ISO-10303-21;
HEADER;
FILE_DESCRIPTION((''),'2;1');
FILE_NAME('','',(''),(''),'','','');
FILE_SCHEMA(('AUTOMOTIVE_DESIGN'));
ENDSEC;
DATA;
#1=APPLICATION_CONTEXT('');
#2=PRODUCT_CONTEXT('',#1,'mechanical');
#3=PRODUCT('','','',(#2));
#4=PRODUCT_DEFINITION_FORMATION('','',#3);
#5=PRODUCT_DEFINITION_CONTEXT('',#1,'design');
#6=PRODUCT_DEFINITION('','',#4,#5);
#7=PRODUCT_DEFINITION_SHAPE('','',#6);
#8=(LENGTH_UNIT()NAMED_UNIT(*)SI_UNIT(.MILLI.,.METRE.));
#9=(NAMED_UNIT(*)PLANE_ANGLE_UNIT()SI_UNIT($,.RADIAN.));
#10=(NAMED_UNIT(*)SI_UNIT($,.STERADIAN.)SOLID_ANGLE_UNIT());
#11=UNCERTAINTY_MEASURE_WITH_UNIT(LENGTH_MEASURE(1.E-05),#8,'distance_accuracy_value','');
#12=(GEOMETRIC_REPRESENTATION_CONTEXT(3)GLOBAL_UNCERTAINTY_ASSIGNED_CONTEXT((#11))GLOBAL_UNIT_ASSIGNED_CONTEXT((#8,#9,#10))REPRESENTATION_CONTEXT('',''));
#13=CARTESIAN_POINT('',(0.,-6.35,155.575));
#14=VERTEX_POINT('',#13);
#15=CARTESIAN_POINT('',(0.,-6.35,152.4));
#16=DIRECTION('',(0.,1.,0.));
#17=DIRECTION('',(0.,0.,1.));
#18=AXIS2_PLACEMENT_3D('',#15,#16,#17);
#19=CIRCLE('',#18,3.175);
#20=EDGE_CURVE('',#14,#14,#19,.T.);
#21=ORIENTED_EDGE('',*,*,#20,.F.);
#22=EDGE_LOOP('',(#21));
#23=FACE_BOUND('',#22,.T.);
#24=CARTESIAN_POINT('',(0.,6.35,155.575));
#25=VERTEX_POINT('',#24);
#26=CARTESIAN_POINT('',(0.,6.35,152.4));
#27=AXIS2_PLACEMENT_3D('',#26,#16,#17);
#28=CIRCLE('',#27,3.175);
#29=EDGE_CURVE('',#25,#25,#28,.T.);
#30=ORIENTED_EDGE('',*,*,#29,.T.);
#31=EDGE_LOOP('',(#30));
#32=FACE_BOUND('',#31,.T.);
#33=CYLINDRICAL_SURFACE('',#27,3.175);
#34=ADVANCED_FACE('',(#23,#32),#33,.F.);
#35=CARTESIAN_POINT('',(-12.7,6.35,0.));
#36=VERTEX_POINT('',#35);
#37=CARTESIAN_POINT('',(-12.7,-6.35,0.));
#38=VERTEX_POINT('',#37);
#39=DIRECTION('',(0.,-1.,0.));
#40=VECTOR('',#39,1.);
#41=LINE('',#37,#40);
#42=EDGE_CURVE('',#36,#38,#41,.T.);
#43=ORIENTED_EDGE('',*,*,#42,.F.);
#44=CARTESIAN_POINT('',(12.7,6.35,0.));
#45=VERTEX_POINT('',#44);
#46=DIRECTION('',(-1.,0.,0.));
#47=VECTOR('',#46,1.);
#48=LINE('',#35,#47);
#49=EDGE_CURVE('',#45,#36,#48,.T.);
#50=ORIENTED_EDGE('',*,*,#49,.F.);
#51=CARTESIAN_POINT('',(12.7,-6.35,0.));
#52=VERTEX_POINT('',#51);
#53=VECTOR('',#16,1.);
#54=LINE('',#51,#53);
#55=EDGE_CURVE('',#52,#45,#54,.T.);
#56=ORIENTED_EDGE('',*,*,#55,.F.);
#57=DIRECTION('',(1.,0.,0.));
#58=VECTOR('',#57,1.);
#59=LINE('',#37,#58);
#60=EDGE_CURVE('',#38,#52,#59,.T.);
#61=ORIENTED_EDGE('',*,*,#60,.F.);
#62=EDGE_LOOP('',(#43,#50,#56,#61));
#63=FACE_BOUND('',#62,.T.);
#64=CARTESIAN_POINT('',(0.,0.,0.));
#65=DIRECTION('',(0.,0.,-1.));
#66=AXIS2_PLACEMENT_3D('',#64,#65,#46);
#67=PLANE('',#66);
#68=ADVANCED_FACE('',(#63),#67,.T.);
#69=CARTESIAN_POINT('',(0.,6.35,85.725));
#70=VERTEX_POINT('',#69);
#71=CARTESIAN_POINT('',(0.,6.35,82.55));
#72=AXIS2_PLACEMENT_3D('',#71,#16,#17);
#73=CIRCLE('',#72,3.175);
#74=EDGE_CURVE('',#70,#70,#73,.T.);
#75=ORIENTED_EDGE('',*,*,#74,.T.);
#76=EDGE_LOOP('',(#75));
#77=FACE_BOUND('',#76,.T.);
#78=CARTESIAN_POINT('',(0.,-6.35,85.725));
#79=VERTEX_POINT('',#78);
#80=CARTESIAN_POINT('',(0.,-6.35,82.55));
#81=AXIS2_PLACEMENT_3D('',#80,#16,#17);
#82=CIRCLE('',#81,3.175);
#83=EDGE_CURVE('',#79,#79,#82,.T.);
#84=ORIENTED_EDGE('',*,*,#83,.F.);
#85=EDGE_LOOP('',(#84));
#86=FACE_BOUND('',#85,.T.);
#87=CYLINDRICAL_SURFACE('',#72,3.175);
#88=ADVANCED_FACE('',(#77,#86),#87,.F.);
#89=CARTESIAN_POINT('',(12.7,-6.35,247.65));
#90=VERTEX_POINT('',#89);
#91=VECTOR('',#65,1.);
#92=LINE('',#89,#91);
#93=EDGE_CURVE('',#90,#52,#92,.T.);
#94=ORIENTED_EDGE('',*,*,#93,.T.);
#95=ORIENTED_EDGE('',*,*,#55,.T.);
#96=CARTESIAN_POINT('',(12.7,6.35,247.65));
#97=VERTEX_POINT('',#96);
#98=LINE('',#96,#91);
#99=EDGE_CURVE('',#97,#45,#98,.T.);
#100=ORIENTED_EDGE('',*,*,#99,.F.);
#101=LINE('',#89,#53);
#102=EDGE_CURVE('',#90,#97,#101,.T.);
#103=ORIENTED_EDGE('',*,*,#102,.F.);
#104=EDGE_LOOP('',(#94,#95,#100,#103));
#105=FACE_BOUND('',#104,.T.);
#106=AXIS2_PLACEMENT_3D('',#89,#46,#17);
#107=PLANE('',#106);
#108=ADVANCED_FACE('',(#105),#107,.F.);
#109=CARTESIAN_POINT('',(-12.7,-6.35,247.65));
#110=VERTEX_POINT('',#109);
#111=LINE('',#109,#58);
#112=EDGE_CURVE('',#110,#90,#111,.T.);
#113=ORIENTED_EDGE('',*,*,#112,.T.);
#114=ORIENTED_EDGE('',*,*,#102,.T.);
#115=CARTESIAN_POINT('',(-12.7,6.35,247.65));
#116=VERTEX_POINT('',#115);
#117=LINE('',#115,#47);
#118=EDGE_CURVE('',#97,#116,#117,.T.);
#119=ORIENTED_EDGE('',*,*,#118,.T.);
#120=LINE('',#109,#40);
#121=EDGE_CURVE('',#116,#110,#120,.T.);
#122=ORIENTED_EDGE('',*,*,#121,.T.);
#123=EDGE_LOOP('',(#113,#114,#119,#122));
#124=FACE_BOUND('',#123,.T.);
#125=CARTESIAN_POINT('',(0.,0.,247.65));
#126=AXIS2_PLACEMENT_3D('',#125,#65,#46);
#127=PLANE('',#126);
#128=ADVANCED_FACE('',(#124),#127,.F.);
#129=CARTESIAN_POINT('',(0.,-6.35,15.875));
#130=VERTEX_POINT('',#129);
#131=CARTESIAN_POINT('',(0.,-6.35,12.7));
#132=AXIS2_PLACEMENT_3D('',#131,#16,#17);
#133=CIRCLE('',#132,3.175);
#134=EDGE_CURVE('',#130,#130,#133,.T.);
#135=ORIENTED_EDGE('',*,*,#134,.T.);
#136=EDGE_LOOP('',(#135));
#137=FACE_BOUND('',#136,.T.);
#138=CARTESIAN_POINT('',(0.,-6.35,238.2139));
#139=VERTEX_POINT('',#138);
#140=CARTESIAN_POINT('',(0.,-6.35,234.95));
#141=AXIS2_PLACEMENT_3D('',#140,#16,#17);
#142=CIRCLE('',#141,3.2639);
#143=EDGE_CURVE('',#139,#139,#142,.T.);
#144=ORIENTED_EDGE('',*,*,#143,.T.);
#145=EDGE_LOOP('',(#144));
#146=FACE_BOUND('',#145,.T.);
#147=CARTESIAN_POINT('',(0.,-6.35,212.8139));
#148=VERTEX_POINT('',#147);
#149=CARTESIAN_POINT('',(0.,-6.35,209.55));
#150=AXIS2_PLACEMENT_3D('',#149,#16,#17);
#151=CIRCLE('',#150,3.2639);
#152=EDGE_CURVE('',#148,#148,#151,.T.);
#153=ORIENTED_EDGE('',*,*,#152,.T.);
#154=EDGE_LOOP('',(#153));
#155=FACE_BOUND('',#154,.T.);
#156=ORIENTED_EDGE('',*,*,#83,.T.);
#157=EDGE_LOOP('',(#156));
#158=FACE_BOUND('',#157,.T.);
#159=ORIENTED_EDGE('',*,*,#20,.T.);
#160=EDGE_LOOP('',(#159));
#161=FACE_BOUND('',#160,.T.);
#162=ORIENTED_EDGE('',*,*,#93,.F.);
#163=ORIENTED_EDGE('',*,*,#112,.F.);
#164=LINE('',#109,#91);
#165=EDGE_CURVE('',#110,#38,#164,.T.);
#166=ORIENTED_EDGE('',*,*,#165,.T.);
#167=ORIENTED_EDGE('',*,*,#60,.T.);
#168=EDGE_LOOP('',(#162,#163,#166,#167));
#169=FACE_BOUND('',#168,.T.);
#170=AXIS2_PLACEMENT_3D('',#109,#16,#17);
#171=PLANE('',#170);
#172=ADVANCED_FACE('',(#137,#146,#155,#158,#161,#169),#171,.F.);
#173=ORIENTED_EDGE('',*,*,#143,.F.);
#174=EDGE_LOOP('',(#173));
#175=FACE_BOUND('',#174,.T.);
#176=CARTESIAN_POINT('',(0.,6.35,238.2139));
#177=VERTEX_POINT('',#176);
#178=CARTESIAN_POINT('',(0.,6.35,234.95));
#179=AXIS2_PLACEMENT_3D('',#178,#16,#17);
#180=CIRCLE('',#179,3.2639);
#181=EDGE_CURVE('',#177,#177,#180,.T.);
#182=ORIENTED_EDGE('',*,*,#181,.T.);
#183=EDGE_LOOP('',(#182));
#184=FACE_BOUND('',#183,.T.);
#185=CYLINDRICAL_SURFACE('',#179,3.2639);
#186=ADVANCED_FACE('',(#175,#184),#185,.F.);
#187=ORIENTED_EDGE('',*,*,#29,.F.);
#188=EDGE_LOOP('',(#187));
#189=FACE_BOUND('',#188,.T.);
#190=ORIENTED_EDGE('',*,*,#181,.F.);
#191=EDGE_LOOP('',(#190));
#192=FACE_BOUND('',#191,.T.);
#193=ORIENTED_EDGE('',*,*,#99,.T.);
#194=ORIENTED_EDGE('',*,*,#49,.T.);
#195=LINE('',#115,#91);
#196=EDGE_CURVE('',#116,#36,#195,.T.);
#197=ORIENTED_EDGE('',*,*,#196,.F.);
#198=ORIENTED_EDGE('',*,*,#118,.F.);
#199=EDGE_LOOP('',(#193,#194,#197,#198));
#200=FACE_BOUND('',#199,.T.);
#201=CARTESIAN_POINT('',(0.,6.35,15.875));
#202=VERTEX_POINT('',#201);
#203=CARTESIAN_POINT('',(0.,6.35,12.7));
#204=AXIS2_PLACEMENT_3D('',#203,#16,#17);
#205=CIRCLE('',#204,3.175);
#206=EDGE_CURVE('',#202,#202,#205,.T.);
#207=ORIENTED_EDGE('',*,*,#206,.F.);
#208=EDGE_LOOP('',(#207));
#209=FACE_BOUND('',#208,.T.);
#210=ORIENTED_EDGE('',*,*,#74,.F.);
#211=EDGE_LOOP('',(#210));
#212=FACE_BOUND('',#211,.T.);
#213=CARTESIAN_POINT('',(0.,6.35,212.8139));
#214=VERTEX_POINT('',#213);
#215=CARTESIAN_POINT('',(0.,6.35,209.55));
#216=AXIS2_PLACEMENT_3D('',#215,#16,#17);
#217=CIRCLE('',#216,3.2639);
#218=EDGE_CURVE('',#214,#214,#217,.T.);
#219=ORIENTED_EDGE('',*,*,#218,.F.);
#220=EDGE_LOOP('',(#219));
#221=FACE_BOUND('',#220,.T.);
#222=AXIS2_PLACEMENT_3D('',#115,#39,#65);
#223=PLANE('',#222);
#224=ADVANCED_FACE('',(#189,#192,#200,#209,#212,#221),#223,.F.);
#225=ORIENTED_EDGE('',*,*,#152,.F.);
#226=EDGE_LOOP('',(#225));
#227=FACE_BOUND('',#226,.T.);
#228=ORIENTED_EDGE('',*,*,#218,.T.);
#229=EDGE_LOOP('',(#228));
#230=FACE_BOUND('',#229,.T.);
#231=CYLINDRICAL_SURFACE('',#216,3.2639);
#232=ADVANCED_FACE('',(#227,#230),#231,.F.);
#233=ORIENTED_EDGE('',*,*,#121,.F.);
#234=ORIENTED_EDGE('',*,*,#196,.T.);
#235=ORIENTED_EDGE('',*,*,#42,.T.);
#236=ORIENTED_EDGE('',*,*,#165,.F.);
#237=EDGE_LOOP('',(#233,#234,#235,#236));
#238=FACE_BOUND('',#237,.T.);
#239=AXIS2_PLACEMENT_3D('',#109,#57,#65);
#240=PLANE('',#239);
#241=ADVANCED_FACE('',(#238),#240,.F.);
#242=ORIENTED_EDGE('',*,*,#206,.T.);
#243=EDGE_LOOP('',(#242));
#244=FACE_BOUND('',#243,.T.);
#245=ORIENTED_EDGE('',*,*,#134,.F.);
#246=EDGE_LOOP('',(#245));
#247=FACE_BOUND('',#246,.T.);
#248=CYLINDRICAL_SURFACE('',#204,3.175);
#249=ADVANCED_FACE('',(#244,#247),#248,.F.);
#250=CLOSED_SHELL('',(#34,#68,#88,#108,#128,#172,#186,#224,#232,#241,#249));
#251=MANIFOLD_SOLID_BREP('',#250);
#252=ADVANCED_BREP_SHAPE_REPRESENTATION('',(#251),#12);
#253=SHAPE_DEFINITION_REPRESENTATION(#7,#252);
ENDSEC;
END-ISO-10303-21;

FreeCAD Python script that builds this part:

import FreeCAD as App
import Part
import Sketcher
Q = App.Units.Quantity

doc = App.newDocument("Part")
body = doc.addObject("PartDesign::Body", "Body")

# Sketch on XY plane
sketch1 = body.newObject("Sketcher::SketchObject", "Sketch")
sketch1.AttachmentSupport = (doc.getObject("XY_Plane"), [""])
sketch1.MapMode = "FlatFace"
sketch1.addGeometry([
    Part.LineSegment(App.Vector(-13, 6, 0), App.Vector(-13, -6, 0)),
    Part.LineSegment(App.Vector(-13, -6, 0), App.Vector(13, -6, 0)),
    Part.LineSegment(App.Vector(13, -6, 0), App.Vector(13, 6, 0)),
    Part.LineSegment(App.Vector(13, 6, 0), App.Vector(-13, 6, 0)),
], False)
sketch1.addConstraint([
    Sketcher.Constraint("Coincident", 0, 2, 1, 1),
    Sketcher.Constraint("Coincident", 1, 2, 2, 1),
    Sketcher.Constraint("Coincident", 2, 2, 3, 1),
    Sketcher.Constraint("Coincident", 3, 2, 0, 1),
    Sketcher.Constraint("Vertical", 0),
    Sketcher.Constraint("Horizontal", 1),
    Sketcher.Constraint("Vertical", 2),
    Sketcher.Constraint("Horizontal", 3),
    Sketcher.Constraint("Symmetric", 0, 2, 2, 2, -1, 1),
    Sketcher.Constraint("DistanceX", 1, 1, 1, 2, Q("1 in")),
    Sketcher.Constraint("DistanceY", 0, 2, 0, 1, Q("0.5 in")),
])
pad1 = body.newObject("PartDesign::Pad", "Pad")
pad1.Profile = sketch1
pad1.Length = Q("9.75 in")

# Sketch on XZ plane
sketch2 = body.newObject("Sketcher::SketchObject", "Sketch001")
sketch2.AttachmentSupport = (doc.getObject("XZ_Plane"), [""])
sketch2.MapMode = "FlatFace"
sketch2.AttachmentOffset = App.Placement(App.Vector(0, 0, -0.25 * 25.4), App.Rotation())
sketch2.addGeometry([
    Part.Circle(App.Vector(0, 234.9, 0), App.Vector(0, 0, 1), 3.3),
    Part.Circle(App.Vector(0, 209.6, 0), App.Vector(0, 0, 1), 3.3),
], False)
sketch2.addConstraint([
    Sketcher.Constraint("Equal", 0, 1),
    Sketcher.Constraint("PointOnObject", 0, 3, -2),
    Sketcher.Constraint("PointOnObject", 1, 3, -2),
    Sketcher.Constraint("Diameter", 0, Q("0.257 in")),
    Sketcher.Constraint("DistanceY", 1, 3, 0, 3, Q("1 in")),
    Sketcher.Constraint("DistanceY", -1, 1, 0, 3, Q("9.25 in")),
])
doc.recompute()
hole = body.newObject("PartDesign::Hole", "Hole")
hole.Profile = sketch2
hole.ThreadType = "None"
hole.Diameter = Q("0.257 in")
hole.DepthType = "ThroughAll"
hole.Reversed = True

# Sketch on XZ plane
sketch3 = body.newObject("Sketcher::SketchObject", "Sketch002")
sketch3.AttachmentSupport = (doc.getObject("XZ_Plane"), [""])
sketch3.MapMode = "FlatFace"
sketch3.AttachmentOffset = App.Placement(App.Vector(0, 0, -0.25 * 25.4), App.Rotation())
sketch3.addGeometry([
    Part.Circle(App.Vector(0, 82.5, 0), App.Vector(0, 0, 1), 3.2),
    Part.Circle(App.Vector(0, 12.7, 0), App.Vector(0, 0, 1), 3.2),
    Part.Circle(App.Vector(0, 152.4, 0), App.Vector(0, 0, 1), 3.2),
], False)
sketch3.addConstraint([
    Sketcher.Constraint("Equal", 0, 1),
    Sketcher.Constraint("Equal", 1, 2),
    Sketcher.Constraint("PointOnObject", 0, 3, -2),
    Sketcher.Constraint("PointOnObject", 1, 3, -2),
    Sketcher.Constraint("PointOnObject", 2, 3, -2),
    Sketcher.Constraint("Diameter", 0, Q("0.25 in")),
    Sketcher.Constraint("DistanceY", -1, 1, 2, 3, Q("6 in")),
    Sketcher.Constraint("DistanceY", -1, 1, 1, 3, Q("0.5 in")),
    Sketcher.Constraint("DistanceY", -1, 1, 0, 3, Q("3.25 in")),
])
doc.recompute()
hole2 = body.newObject("PartDesign::Hole", "Hole001")
hole2.Profile = sketch3
hole2.ThreadType = "None"
hole2.Diameter = Q("0.25 in")
hole2.DepthType = "ThroughAll"
hole2.Reversed = True

doc.recompute()
